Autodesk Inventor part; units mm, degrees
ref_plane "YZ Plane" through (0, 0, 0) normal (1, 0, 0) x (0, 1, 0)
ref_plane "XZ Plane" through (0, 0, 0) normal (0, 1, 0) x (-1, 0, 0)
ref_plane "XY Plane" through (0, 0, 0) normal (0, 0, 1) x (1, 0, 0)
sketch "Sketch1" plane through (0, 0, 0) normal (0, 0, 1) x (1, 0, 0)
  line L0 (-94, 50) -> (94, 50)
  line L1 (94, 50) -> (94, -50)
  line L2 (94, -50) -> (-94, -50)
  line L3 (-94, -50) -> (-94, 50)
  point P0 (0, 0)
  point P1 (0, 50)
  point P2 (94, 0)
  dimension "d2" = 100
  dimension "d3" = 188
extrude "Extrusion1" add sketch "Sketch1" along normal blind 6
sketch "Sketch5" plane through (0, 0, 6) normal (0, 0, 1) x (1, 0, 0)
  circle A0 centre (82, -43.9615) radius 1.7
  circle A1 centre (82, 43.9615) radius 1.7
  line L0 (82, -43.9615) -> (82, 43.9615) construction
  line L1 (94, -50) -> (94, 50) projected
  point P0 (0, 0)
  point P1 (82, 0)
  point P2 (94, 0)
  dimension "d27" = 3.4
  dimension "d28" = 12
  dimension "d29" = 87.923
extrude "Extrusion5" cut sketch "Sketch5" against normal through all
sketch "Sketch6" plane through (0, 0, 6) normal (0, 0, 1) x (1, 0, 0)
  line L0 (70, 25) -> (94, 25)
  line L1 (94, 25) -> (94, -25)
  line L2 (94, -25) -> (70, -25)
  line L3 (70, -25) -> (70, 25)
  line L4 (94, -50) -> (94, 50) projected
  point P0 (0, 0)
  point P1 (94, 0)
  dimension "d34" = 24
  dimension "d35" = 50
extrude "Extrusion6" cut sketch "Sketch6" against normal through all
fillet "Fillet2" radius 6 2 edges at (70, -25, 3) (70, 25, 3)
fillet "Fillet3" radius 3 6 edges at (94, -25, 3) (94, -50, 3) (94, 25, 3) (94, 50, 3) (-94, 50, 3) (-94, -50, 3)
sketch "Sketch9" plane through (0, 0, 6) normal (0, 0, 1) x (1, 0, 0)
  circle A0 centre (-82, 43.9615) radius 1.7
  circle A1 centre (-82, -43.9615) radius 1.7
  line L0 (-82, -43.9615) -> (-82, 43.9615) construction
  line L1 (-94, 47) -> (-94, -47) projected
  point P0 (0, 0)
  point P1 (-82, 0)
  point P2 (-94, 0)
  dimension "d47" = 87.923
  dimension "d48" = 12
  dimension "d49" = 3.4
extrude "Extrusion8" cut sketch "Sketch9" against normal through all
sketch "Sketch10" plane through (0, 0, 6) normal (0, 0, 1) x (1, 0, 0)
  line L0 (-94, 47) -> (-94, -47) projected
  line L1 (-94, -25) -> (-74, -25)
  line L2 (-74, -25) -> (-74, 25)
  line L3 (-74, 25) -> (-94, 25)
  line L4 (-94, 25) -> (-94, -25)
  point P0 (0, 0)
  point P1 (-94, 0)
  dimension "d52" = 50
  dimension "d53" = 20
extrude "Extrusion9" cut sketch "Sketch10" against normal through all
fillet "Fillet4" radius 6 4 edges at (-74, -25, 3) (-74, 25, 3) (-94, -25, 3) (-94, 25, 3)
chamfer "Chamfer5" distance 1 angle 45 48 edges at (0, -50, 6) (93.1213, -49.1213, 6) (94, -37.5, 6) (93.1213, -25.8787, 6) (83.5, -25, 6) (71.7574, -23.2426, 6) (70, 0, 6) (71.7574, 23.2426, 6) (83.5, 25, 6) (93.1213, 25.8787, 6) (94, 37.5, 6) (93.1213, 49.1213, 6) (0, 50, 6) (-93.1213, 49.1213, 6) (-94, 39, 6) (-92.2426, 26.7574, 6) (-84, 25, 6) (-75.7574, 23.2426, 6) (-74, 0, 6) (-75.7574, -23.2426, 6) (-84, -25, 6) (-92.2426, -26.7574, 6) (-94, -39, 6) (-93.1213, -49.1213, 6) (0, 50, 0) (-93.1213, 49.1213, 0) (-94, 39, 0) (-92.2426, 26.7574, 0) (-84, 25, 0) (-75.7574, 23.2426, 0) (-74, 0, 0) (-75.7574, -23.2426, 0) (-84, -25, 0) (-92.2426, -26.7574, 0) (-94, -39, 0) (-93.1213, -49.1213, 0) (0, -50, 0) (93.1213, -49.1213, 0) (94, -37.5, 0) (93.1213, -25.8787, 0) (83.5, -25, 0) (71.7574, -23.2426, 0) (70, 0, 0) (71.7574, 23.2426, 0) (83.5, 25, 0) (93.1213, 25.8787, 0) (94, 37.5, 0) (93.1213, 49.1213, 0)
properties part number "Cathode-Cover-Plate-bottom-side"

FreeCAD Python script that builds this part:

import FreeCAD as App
import Part
import Sketcher
from FreeCAD import Vector


def edges_at(feature, points):
    """Names of the edges that pass closest to the given points."""
    edges = feature.Shape.Edges
    near = lambda p: min(range(len(edges)), key=lambda i: edges[i].distToShape(Part.Vertex(*p))[0])
    return sorted({f"Edge{near(p) + 1}" for p in points})

doc = App.newDocument("Part")
body = doc.addObject("PartDesign::Body", "Body")

# Sketch on XY plane
sketch1 = body.newObject("Sketcher::SketchObject", "Sketch")
sketch1.AttachmentSupport = (doc.getObject("XY_Plane"), [""])
sketch1.MapMode = "FlatFace"
sketch1.addGeometry(Part.LineSegment(Vector(94, 50, 0), Vector(-94, 50, 0)), False)
sketch1.addGeometry(Part.LineSegment(Vector(-94, 50, 0), Vector(-94, -50, 0)), False)
sketch1.addGeometry(Part.LineSegment(Vector(-94, -50, 0), Vector(94, -50, 0)), False)
sketch1.addGeometry(Part.LineSegment(Vector(94, -50, 0), Vector(94, 50, 0)), False)
sketch1.addConstraint(Sketcher.Constraint("Coincident", 0, 2, 1, 1))
sketch1.addConstraint(Sketcher.Constraint("Coincident", 1, 2, 2, 1))
sketch1.addConstraint(Sketcher.Constraint("Coincident", 2, 2, 3, 1))
sketch1.addConstraint(Sketcher.Constraint("Coincident", 3, 2, 0, 1))
sketch1.addConstraint(Sketcher.Constraint("Horizontal", 0))
sketch1.addConstraint(Sketcher.Constraint("Vertical", 1))
sketch1.addConstraint(Sketcher.Constraint("Horizontal", 2))
sketch1.addConstraint(Sketcher.Constraint("Vertical", 3))
sketch1.addConstraint(Sketcher.Constraint("Symmetric", 0, 2, 2, 2, -1, 1))
sketch1.addConstraint(Sketcher.Constraint("DistanceX", 0, 2, 0, 1, 188.0))
sketch1.addConstraint(Sketcher.Constraint("DistanceY", 1, 2, 1, 1, 100.0))
pad1 = body.newObject("PartDesign::Pad", "Pad")
pad1.Profile = sketch1
pad1.Length = 6

# Sketch on XY plane
sketch2 = body.newObject("Sketcher::SketchObject", "Sketch001")
sketch2.AttachmentSupport = (doc.getObject("XY_Plane"), [""])
sketch2.MapMode = "FlatFace"
sketch2.AttachmentOffset = App.Placement(Vector(0, 0, 6), App.Rotation())
sketch2.addGeometry(Part.Circle(Vector(82, -43.9615, 0), Vector(0, 0, 1), 1.7), False)
sketch2.addGeometry(Part.Circle(Vector(82, 43.9615, 0), Vector(0, 0, 1), 1.7), False)
sketch2.addConstraint(Sketcher.Constraint("Equal", 0, 1))
sketch2.addConstraint(Sketcher.Constraint("Symmetric", 0, 3, 1, 3, -1))
sketch2.addConstraint(Sketcher.Constraint("Diameter", 0, 3.4))
sketch2.addConstraint(Sketcher.Constraint("DistanceX", -1, 1, 0, 3, 82.0))
sketch2.addConstraint(Sketcher.Constraint("DistanceY", 0, 3, 1, 3, 87.923))
pocket1 = body.newObject("PartDesign::Pocket", "Pocket")
pocket1.Profile = sketch2
pocket1.Type = "ThroughAll"

# Sketch on XY plane
sketch3 = body.newObject("Sketcher::SketchObject", "Sketch002")
sketch3.AttachmentSupport = (doc.getObject("XY_Plane"), [""])
sketch3.MapMode = "FlatFace"
sketch3.AttachmentOffset = App.Placement(Vector(0, 0, 6), App.Rotation())
sketch3.addGeometry(Part.LineSegment(Vector(94, 25, 0), Vector(70, 25, 0)), False)
sketch3.addGeometry(Part.LineSegment(Vector(70, 25, 0), Vector(70, -25, 0)), False)
sketch3.addGeometry(Part.LineSegment(Vector(70, -25, 0), Vector(94, -25, 0)), False)
sketch3.addGeometry(Part.LineSegment(Vector(94, -25, 0), Vector(94, 25, 0)), False)
sketch3.addConstraint(Sketcher.Constraint("Coincident", 0, 2, 1, 1))
sketch3.addConstraint(Sketcher.Constraint("Coincident", 1, 2, 2, 1))
sketch3.addConstraint(Sketcher.Constraint("Coincident", 2, 2, 3, 1))
sketch3.addConstraint(Sketcher.Constraint("Coincident", 3, 2, 0, 1))
sketch3.addConstraint(Sketcher.Constraint("Horizontal", 0))
sketch3.addConstraint(Sketcher.Constraint("Vertical", 1))
sketch3.addConstraint(Sketcher.Constraint("Horizontal", 2))
sketch3.addConstraint(Sketcher.Constraint("Vertical", 3))
sketch3.addConstraint(Sketcher.Constraint("DistanceX", 0, 2, 0, 1, 24.0))
sketch3.addConstraint(Sketcher.Constraint("DistanceY", 1, 2, 1, 1, 50.0))
sketch3.addConstraint(Sketcher.Constraint("DistanceX", -1, 1, 0, 2, 70.0))
sketch3.addConstraint(Sketcher.Constraint("DistanceY", -1, 1, 0, 2, 25.0))
pocket2 = body.newObject("PartDesign::Pocket", "Pocket001")
pocket2.Profile = sketch3
pocket2.Type = "ThroughAll"
doc.recompute()

fillet = body.newObject("PartDesign::Fillet", "Fillet")
fillet.Base = (pocket2, edges_at(pocket2, [(70, -25, 3), (70, 25, 3)]))
fillet.Radius = 6
doc.recompute()

fillet2 = body.newObject("PartDesign::Fillet", "Fillet001")
fillet2.Base = (fillet, edges_at(fillet, [
    (94, -25, 3),
    (94, -50, 3),
    (94, 25, 3),
    (94, 50, 3),
    (-94, 50, 3),
    (-94, -50, 3),
]))
fillet2.Radius = 3

# Sketch on XY plane
sketch4 = body.newObject("Sketcher::SketchObject", "Sketch003")
sketch4.AttachmentSupport = (doc.getObject("XY_Plane"), [""])
sketch4.MapMode = "FlatFace"
sketch4.AttachmentOffset = App.Placement(Vector(0, 0, 6), App.Rotation())
sketch4.addGeometry(Part.Circle(Vector(-82, 43.9615, 0), Vector(0, 0, 1), 1.7), False)
sketch4.addGeometry(Part.Circle(Vector(-82, -43.9615, 0), Vector(0, 0, 1), 1.7), False)
sketch4.addConstraint(Sketcher.Constraint("Equal", 0, 1))
sketch4.addConstraint(Sketcher.Constraint("Symmetric", 0, 3, 1, 3, -1))
sketch4.addConstraint(Sketcher.Constraint("Diameter", 0, 3.4))
sketch4.addConstraint(Sketcher.Constraint("DistanceX", 0, 3, -1, 1, 82.0))
sketch4.addConstraint(Sketcher.Constraint("DistanceY", 1, 3, 0, 3, 87.923))
pocket3 = body.newObject("PartDesign::Pocket", "Pocket002")
pocket3.Profile = sketch4
pocket3.Type = "ThroughAll"

# Sketch on XY plane
sketch5 = body.newObject("Sketcher::SketchObject", "Sketch004")
sketch5.AttachmentSupport = (doc.getObject("XY_Plane"), [""])
sketch5.MapMode = "FlatFace"
sketch5.AttachmentOffset = App.Placement(Vector(0, 0, 6), App.Rotation())
sketch5.addGeometry(Part.LineSegment(Vector(-74, 25, 0), Vector(-94, 25, 0)), False)
sketch5.addGeometry(Part.LineSegment(Vector(-94, 25, 0), Vector(-94, -25, 0)), False)
sketch5.addGeometry(Part.LineSegment(Vector(-94, -25, 0), Vector(-74, -25, 0)), False)
sketch5.addGeometry(Part.LineSegment(Vector(-74, -25, 0), Vector(-74, 25, 0)), False)
sketch5.addConstraint(Sketcher.Constraint("Coincident", 0, 2, 1, 1))
sketch5.addConstraint(Sketcher.Constraint("Coincident", 1, 2, 2, 1))
sketch5.addConstraint(Sketcher.Constraint("Coincident", 2, 2, 3, 1))
sketch5.addConstraint(Sketcher.Constraint("Coincident", 3, 2, 0, 1))
sketch5.addConstraint(Sketcher.Constraint("Horizontal", 0))
sketch5.addConstraint(Sketcher.Constraint("Vertical", 1))
sketch5.addConstraint(Sketcher.Constraint("Horizontal", 2))
sketch5.addConstraint(Sketcher.Constraint("Vertical", 3))
sketch5.addConstraint(Sketcher.Constraint("DistanceX", 0, 2, 0, 1, 20.0))
sketch5.addConstraint(Sketcher.Constraint("DistanceY", 1, 2, 1, 1, 50.0))
sketch5.addConstraint(Sketcher.Constraint("DistanceX", 0, 2, -1, 1, 94.0))
sketch5.addConstraint(Sketcher.Constraint("DistanceY", -1, 1, 0, 2, 25.0))
pocket4 = body.newObject("PartDesign::Pocket", "Pocket003")
pocket4.Profile = sketch5
pocket4.Type = "ThroughAll"
doc.recompute()

fillet3 = body.newObject("PartDesign::Fillet", "Fillet002")
fillet3.Base = (pocket4, edges_at(pocket4, [
    (-74, -25, 3),
    (-74, 25, 3),
    (-94, -25, 3),
    (-94, 25, 3),
]))
fillet3.Radius = 6
doc.recompute()

chamfer = body.newObject("PartDesign::Chamfer", "Chamfer")
chamfer.Base = (fillet3, edges_at(fillet3, [
    (0, -50, 6),
    (93.121, -49.121, 6),
    (94, -37.5, 6),
    (93.121, -25.879, 6),
    (83.5, -25, 6),
    (71.757, -23.243, 6),
    (70, 0, 6),
    (71.757, 23.243, 6),
    (83.5, 25, 6),
    (93.121, 25.879, 6),
    (94, 37.5, 6),
    (93.121, 49.121, 6),
    (0, 50, 6),
    (-93.121, 49.121, 6),
    (-94, 39, 6),
    (-92.243, 26.757, 6),
    (-84, 25, 6),
    (-75.757, 23.243, 6),
    (-74, 0, 6),
    (-75.757, -23.243, 6),
    (-84, -25, 6),
    (-92.243, -26.757, 6),
    (-94, -39, 6),
    (-93.121, -49.121, 6),
    (0, 50, 0),
    (-93.121, 49.121, 0),
    (-94, 39, 0),
    (-92.243, 26.757, 0),
    (-84, 25, 0),
    (-75.757, 23.243, 0),
    (-74, 0, 0),
    (-75.757, -23.243, 0),
    (-84, -25, 0),
    (-92.243, -26.757, 0),
    (-94, -39, 0),
    (-93.121, -49.121, 0),
    (0, -50, 0),
    (93.121, -49.121, 0),
    (94, -37.5, 0),
    (93.121, -25.879, 0),
    (83.5, -25, 0),
    (71.757, -23.243, 0),
    (70, 0, 0),
    (71.757, 23.243, 0),
    (83.5, 25, 0),
    (93.121, 25.879, 0),
    (94, 37.5, 0),
    (93.121, 49.121, 0),
]))
chamfer.Size = 1

doc.recompute()
